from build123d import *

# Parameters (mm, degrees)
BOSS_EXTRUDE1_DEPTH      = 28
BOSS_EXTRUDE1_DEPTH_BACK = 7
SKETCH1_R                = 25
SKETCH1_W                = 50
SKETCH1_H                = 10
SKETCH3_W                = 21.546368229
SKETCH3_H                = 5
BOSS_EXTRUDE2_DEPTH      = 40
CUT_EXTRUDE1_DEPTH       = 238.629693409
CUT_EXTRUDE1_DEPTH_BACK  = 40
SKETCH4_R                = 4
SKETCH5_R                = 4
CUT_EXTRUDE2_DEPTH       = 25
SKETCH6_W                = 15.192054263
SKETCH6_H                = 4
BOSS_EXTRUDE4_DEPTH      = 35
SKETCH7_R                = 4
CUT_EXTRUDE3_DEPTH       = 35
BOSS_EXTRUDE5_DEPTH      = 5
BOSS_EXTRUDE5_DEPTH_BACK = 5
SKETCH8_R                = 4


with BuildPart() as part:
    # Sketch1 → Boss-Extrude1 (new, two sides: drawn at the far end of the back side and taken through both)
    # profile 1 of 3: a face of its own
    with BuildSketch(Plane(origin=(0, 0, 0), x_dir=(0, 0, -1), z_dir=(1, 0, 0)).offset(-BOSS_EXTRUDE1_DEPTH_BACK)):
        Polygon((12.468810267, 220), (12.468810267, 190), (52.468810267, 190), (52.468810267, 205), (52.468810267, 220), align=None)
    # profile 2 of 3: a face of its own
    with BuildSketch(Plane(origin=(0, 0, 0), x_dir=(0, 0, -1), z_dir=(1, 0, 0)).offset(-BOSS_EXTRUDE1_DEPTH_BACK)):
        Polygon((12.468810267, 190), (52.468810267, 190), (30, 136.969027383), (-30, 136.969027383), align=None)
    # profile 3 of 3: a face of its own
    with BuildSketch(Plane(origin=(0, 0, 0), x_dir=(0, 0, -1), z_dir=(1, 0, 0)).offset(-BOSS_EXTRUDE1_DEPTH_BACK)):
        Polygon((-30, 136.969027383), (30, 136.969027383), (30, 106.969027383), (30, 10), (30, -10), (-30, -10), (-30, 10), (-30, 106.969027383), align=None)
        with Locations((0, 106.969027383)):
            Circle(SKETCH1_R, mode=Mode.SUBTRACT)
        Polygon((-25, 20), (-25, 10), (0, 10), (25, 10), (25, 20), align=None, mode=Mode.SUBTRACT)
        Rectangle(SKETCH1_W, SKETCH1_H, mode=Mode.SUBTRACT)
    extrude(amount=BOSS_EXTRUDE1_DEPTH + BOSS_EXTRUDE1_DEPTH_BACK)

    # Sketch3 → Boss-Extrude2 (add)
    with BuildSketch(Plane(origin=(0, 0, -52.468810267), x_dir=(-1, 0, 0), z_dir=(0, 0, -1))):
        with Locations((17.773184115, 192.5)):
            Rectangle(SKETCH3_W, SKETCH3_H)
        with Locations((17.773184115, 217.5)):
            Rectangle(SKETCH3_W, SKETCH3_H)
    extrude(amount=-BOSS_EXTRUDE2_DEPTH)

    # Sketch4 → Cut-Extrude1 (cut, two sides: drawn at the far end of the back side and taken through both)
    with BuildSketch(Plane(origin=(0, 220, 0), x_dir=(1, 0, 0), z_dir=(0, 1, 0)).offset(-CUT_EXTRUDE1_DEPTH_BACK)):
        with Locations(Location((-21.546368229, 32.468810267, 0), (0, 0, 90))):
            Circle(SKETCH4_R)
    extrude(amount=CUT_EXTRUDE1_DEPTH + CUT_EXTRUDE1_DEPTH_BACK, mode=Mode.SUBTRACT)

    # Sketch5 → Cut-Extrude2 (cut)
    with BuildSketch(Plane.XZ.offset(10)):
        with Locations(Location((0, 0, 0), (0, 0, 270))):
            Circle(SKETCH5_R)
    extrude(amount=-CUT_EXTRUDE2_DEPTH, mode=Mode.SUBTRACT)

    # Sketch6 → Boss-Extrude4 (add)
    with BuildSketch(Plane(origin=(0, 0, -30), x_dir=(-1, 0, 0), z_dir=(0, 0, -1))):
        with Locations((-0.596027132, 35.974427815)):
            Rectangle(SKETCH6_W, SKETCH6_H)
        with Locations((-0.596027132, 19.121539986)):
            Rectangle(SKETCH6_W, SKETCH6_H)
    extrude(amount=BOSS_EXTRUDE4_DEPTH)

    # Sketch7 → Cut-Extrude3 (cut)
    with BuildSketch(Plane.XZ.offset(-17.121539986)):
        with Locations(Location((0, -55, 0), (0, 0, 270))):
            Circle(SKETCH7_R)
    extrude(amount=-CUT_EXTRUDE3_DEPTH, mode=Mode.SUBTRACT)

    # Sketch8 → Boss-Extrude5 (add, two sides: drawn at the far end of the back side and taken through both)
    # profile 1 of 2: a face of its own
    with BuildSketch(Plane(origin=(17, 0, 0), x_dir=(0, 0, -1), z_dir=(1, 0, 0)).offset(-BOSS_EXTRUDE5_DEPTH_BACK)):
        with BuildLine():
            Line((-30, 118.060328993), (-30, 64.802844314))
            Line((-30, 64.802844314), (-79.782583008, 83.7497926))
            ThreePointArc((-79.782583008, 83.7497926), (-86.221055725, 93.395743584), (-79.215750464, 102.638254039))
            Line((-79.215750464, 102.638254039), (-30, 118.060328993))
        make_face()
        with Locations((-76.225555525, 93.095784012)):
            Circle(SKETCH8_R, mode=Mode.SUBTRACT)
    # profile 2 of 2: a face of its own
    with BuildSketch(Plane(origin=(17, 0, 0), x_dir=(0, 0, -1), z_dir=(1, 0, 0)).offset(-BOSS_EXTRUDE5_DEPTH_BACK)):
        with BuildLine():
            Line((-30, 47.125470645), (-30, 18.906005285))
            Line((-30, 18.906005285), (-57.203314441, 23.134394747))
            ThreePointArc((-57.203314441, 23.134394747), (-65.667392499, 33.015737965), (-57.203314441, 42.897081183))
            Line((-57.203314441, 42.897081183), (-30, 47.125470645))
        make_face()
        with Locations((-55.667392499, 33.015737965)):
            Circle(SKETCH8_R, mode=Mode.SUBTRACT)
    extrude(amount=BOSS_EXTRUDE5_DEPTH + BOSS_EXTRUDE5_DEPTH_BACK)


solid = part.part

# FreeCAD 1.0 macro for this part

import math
import FreeCAD as App
import Part
import Sketcher

doc = App.newDocument("Part")
body = doc.addObject("PartDesign::Body", "Body")

# Sketch on YZ plane
sketch1 = doc.addObject("Sketcher::SketchObject", "Sketch")
body.addObject(sketch1)
sketch1.AttachmentSupport = (doc.YZ_Plane, [""])
sketch1.MapMode = "FlatFace"
sketch1.addGeometry(Part.LineSegment(App.Vector(220, -12, 0), App.Vector(190, -12, 0)), False)
sketch1.addGeometry(Part.LineSegment(App.Vector(190, -12, 0), App.Vector(137, 30, 0)), False)
sketch1.addGeometry(Part.LineSegment(App.Vector(137, 30, 0), App.Vector(-10, 30, 0)), False)
sketch1.addGeometry(Part.LineSegment(App.Vector(-10, 30, 0), App.Vector(-10, -30, 0)), False)
sketch1.addGeometry(Part.LineSegment(App.Vector(-10, -30, 0), App.Vector(137, -30, 0)), False)
sketch1.addGeometry(Part.LineSegment(App.Vector(137, -30, 0), App.Vector(190, -52, 0)), False)
sketch1.addGeometry(Part.LineSegment(App.Vector(190, -52, 0), App.Vector(220, -52, 0)), False)
sketch1.addGeometry(Part.LineSegment(App.Vector(220, -52, 0), App.Vector(220, -12, 0)), False)
sketch1.addGeometry(Part.Circle(App.Vector(107, 0, 0), App.Vector(0, 0, 1), 25), False)
sketch1.addGeometry(Part.LineSegment(App.Vector(-5, 25, 0), App.Vector(5, 25, 0)), False)
sketch1.addGeometry(Part.LineSegment(App.Vector(5, 25, 0), App.Vector(5, -25, 0)), False)
sketch1.addGeometry(Part.LineSegment(App.Vector(5, -25, 0), App.Vector(-5, -25, 0)), False)
sketch1.addGeometry(Part.LineSegment(App.Vector(-5, -25, 0), App.Vector(-5, 25, 0)), False)
sketch1.addGeometry(Part.LineSegment(App.Vector(20, 25, 0), App.Vector(20, -25, 0)), False)
sketch1.addGeometry(Part.LineSegment(App.Vector(20, -25, 0), App.Vector(10, -25, 0)), False)
sketch1.addGeometry(Part.LineSegment(App.Vector(10, -25, 0), App.Vector(10, 25, 0)), False)
sketch1.addGeometry(Part.LineSegment(App.Vector(10, 25, 0), App.Vector(20, 25, 0)), False)
sketch1.addConstraint(Sketcher.Constraint("Coincident", 0, 2, 1, 1))
sketch1.addConstraint(Sketcher.Constraint("Coincident", 1, 2, 2, 1))
sketch1.addConstraint(Sketcher.Constraint("Coincident", 2, 2, 3, 1))
sketch1.addConstraint(Sketcher.Constraint("Coincident", 3, 2, 4, 1))
sketch1.addConstraint(Sketcher.Constraint("Coincident", 4, 2, 5, 1))
sketch1.addConstraint(Sketcher.Constraint("Coincident", 5, 2, 6, 1))
sketch1.addConstraint(Sketcher.Constraint("Coincident", 6, 2, 7, 1))
sketch1.addConstraint(Sketcher.Constraint("Coincident", 7, 2, 0, 1))
sketch1.addConstraint(Sketcher.Constraint("Coincident", 9, 2, 10, 1))
sketch1.addConstraint(Sketcher.Constraint("Coincident", 10, 2, 11, 1))
sketch1.addConstraint(Sketcher.Constraint("Coincident", 11, 2, 12, 1))
sketch1.addConstraint(Sketcher.Constraint("Coincident", 12, 2, 9, 1))
sketch1.addConstraint(Sketcher.Constraint("Coincident", 13, 2, 14, 1))
sketch1.addConstraint(Sketcher.Constraint("Coincident", 14, 2, 15, 1))
sketch1.addConstraint(Sketcher.Constraint("Coincident", 15, 2, 16, 1))
sketch1.addConstraint(Sketcher.Constraint("Coincident", 16, 2, 13, 1))
sketch1.addConstraint(Sketcher.Constraint("Horizontal", 0))
sketch1.addConstraint(Sketcher.Constraint("Horizontal", 2))
sketch1.addConstraint(Sketcher.Constraint("Vertical", 3))
sketch1.addConstraint(Sketcher.Constraint("Horizontal", 4))
sketch1.addConstraint(Sketcher.Constraint("Horizontal", 6))
sketch1.addConstraint(Sketcher.Constraint("Vertical", 7))
sketch1.addConstraint(Sketcher.Constraint("Horizontal", 9))
sketch1.addConstraint(Sketcher.Constraint("Vertical", 10))
sketch1.addConstraint(Sketcher.Constraint("Horizontal", 11))
sketch1.addConstraint(Sketcher.Constraint("Vertical", 12))
sketch1.addConstraint(Sketcher.Constraint("Vertical", 13))
sketch1.addConstraint(Sketcher.Constraint("Horizontal", 14))
sketch1.addConstraint(Sketcher.Constraint("Vertical", 15))
sketch1.addConstraint(Sketcher.Constraint("Horizontal", 16))
sketch1.addConstraint(Sketcher.Constraint("Symmetric", 9, 2, 11, 2, -1, 1))
sketch1.addConstraint(Sketcher.Constraint("Symmetric", 1, 2, 4, 2, -1))
sketch1.addConstraint(Sketcher.Constraint("PointOnObject", 8, 3, -1))
sketch1.addConstraint(Sketcher.Constraint("Horizontal", 11, 2, 13, 2))
sketch1.addConstraint(Sketcher.Constraint("Horizontal", 12, 2, 15, 2))
sketch1.addConstraint(Sketcher.Constraint("Vertical", 0, 2, 5, 2))
sketch1.addConstraint(Sketcher.Constraint("Equal", 11, 14))
sketch1.addConstraint(Sketcher.Constraint("Diameter", 8, 50.0))
sketch1.addConstraint(Sketcher.Constraint("DistanceX", 0, 2, 0, 1, 30.0))
sketch1.addConstraint(Sketcher.Constraint("DistanceX", 9, 1, 9, 2, 10.0))
sketch1.addConstraint(Sketcher.Constraint("DistanceY", 3, 2, 3, 1, 60.0))
sketch1.addConstraint(Sketcher.Constraint("DistanceY", 7, 1, 7, 2, 40.0))
sketch1.addConstraint(Sketcher.Constraint("DistanceY", 10, 2, 10, 1, 50.0))
sketch1.addConstraint(Sketcher.Constraint("DistanceX", -1, 1, 0, 2, 190.0))
sketch1.addConstraint(Sketcher.Constraint("DistanceX", 2, 2, -1, 1, 10.0))
sketch1.addConstraint(Sketcher.Constraint("DistanceX", -1, 1, 13, 2, 20.0))
sketch1.addConstraint(Sketcher.Constraint("DistanceX", 8, 3, 1, 2, 30.0))
sketch1.addConstraint(Sketcher.Constraint("DistanceX", 2, 2, 2, 1, 146.969027))
sketch1.addConstraint(Sketcher.Constraint("DistanceY", 0, 2, -1, 1, 12.46881))
pad1 = doc.addObject("PartDesign::Pad", "Pad")
body.addObject(pad1)
pad1.Profile = sketch1
pad1.Type = "TwoLengths"
pad1.Length = 28
pad1.Length2 = 7

# Sketch on XY plane
sketch2 = doc.addObject("Sketcher::SketchObject", "Sketch001")
body.addObject(sketch2)
sketch2.AttachmentSupport = (doc.XY_Plane, [""])
sketch2.MapMode = "FlatFace"
sketch2.AttachmentOffset = App.Placement(App.Vector(0, 0, -52.46881), App.Rotation())
sketch2.addGeometry(Part.LineSegment(App.Vector(-7, 195, 0), App.Vector(-7, 190, 0)), False)
sketch2.addGeometry(Part.LineSegment(App.Vector(-7, 190, 0), App.Vector(-29, 190, 0)), False)
sketch2.addGeometry(Part.LineSegment(App.Vector(-29, 190, 0), App.Vector(-29, 195, 0)), False)
sketch2.addGeometry(Part.LineSegment(App.Vector(-29, 195, 0), App.Vector(-7, 195, 0)), False)
sketch2.addGeometry(Part.LineSegment(App.Vector(-7, 220, 0), App.Vector(-7, 215, 0)), False)
sketch2.addGeometry(Part.LineSegment(App.Vector(-7, 215, 0), App.Vector(-29, 215, 0)), False)
sketch2.addGeometry(Part.LineSegment(App.Vector(-29, 215, 0), App.Vector(-29, 220, 0)), False)
sketch2.addGeometry(Part.LineSegment(App.Vector(-29, 220, 0), App.Vector(-7, 220, 0)), False)
sketch2.addConstraint(Sketcher.Constraint("Coincident", 0, 2, 1, 1))
sketch2.addConstraint(Sketcher.Constraint("Coincident", 1, 2, 2, 1))
sketch2.addConstraint(Sketcher.Constraint("Coincident", 2, 2, 3, 1))
sketch2.addConstraint(Sketcher.Constraint("Coincident", 3, 2, 0, 1))
sketch2.addConstraint(Sketcher.Constraint("Coincident", 4, 2, 5, 1))
sketch2.addConstraint(Sketcher.Constraint("Coincident", 5, 2, 6, 1))
sketch2.addConstraint(Sketcher.Constraint("Coincident", 6, 2, 7, 1))
sketch2.addConstraint(Sketcher.Constraint("Coincident", 7, 2, 4, 1))
sketch2.addConstraint(Sketcher.Constraint("Vertical", 0))
sketch2.addConstraint(Sketcher.Constraint("Horizontal", 1))
sketch2.addConstraint(Sketcher.Constraint("Vertical", 2))
sketch2.addConstraint(Sketcher.Constraint("Horizontal", 3))
sketch2.addConstraint(Sketcher.Constraint("Vertical", 4))
sketch2.addConstraint(Sketcher.Constraint("Horizontal", 5))
sketch2.addConstraint(Sketcher.Constraint("Vertical", 6))
sketch2.addConstraint(Sketcher.Constraint("Horizontal", 7))
sketch2.addConstraint(Sketcher.Constraint("Vertical", 3, 2, 4, 2))
sketch2.addConstraint(Sketcher.Constraint("Vertical", 2, 2, 5, 2))
sketch2.addConstraint(Sketcher.Constraint("Equal", 2, 4))
sketch2.addConstraint(Sketcher.Constraint("DistanceY", 0, 2, 0, 1, 5.0))
sketch2.addConstraint(Sketcher.Constraint("DistanceX", 0, 2, -1, 1, 7.0))
sketch2.addConstraint(Sketcher.Constraint("DistanceY", -1, 1, 0, 2, 190.0))
sketch2.addConstraint(Sketcher.Constraint("DistanceY", -1, 1, 4, 2, 215.0))
sketch2.addConstraint(Sketcher.Constraint("DistanceX", 1, 2, 1, 1, 21.546368))
pad2 = doc.addObject("PartDesign::Pad", "Pad001")
body.addObject(pad2)
pad2.Profile = sketch2
pad2.Length = 40

# Sketch on XZ plane
sketch3 = doc.addObject("Sketcher::SketchObject", "Sketch002")
body.addObject(sketch3)
sketch3.AttachmentSupport = (doc.XZ_Plane, [""])
sketch3.MapMode = "FlatFace"
sketch3.AttachmentOffset = App.Placement(App.Vector(0, 0, -220), App.Rotation())
sketch3.addGeometry(Part.Circle(App.Vector(-21.5, -32.5, 0), App.Vector(0, 0, 1), 4), False)
sketch3.addConstraint(Sketcher.Constraint("Diameter", 0, 8.0))
sketch3.addConstraint(Sketcher.Constraint("DistanceX", 0, 3, -1, 1, 21.546368))
sketch3.addConstraint(Sketcher.Constraint("DistanceY", 0, 3, -1, 1, 32.46881))
pocket1 = doc.addObject("PartDesign::Pocket", "Pocket")
body.addObject(pocket1)
pocket1.Profile = sketch3
pocket1.Type = "ThroughAll"
pocket1.Midplane = True

# Sketch on XZ plane
sketch4 = doc.addObject("Sketcher::SketchObject", "Sketch003")
body.addObject(sketch4)
sketch4.AttachmentSupport = (doc.XZ_Plane, [""])
sketch4.MapMode = "FlatFace"
sketch4.AttachmentOffset = App.Placement(App.Vector(0, 0, 10), App.Rotation())
sketch4.addGeometry(Part.Circle(App.Vector(0, 0, 0), App.Vector(0, 0, 1), 4), False)
sketch4.addConstraint(Sketcher.Constraint("Coincident", 0, 3, -1, 1))
sketch4.addConstraint(Sketcher.Constraint("Diameter", 0, 8.0))
pocket2 = doc.addObject("PartDesign::Pocket", "Pocket001")
body.addObject(pocket2)
pocket2.Profile = sketch4
pocket2.Length = 25

# Sketch on XY plane
sketch5 = doc.addObject("Sketcher::SketchObject", "Sketch004")
body.addObject(sketch5)
sketch5.AttachmentSupport = (doc.XY_Plane, [""])
sketch5.MapMode = "FlatFace"
sketch5.AttachmentOffset = App.Placement(App.Vector(0, 0, -30), App.Rotation())
sketch5.addGeometry(Part.LineSegment(App.Vector(8.2, 38, 0), App.Vector(8.2, 34, 0)), False)
sketch5.addGeometry(Part.LineSegment(App.Vector(8.2, 34, 0), App.Vector(-7, 34, 0)), False)
sketch5.addGeometry(Part.LineSegment(App.Vector(-7, 34, 0), App.Vector(-7, 38, 0)), False)
sketch5.addGeometry(Part.LineSegment(App.Vector(-7, 38, 0), App.Vector(8.2, 38, 0)), False)
sketch5.addGeometry(Part.LineSegment(App.Vector(8.2, 21.1, 0), App.Vector(8.2, 17.1, 0)), False)
sketch5.addGeometry(Part.LineSegment(App.Vector(8.2, 17.1, 0), App.Vector(-7, 17.1, 0)), False)
sketch5.addGeometry(Part.LineSegment(App.Vector(-7, 17.1, 0), App.Vector(-7, 21.1, 0)), False)
sketch5.addGeometry(Part.LineSegment(App.Vector(-7, 21.1, 0), App.Vector(8.2, 21.1, 0)), False)
sketch5.addConstraint(Sketcher.Constraint("Coincident", 0, 2, 1, 1))
sketch5.addConstraint(Sketcher.Constraint("Coincident", 1, 2, 2, 1))
sketch5.addConstraint(Sketcher.Constraint("Coincident", 2, 2, 3, 1))
sketch5.addConstraint(Sketcher.Constraint("Coincident", 3, 2, 0, 1))
sketch5.addConstraint(Sketcher.Constraint("Coincident", 4, 2, 5, 1))
sketch5.addConstraint(Sketcher.Constraint("Coincident", 5, 2, 6, 1))
sketch5.addConstraint(Sketcher.Constraint("Coincident", 6, 2, 7, 1))
sketch5.addConstraint(Sketcher.Constraint("Coincident", 7, 2, 4, 1))
sketch5.addConstraint(Sketcher.Constraint("Vertical", 0))
sketch5.addConstraint(Sketcher.Constraint("Horizontal", 1))
sketch5.addConstraint(Sketcher.Constraint("Vertical", 2))
sketch5.addConstraint(Sketcher.Constraint("Horizontal", 3))
sketch5.addConstraint(Sketcher.Constraint("Vertical", 4))
sketch5.addConstraint(Sketcher.Constraint("Horizontal", 5))
sketch5.addConstraint(Sketcher.Constraint("Vertical", 6))
sketch5.addConstraint(Sketcher.Constraint("Horizontal", 7))
sketch5.addConstraint(Sketcher.Constraint("Vertical", 3, 2, 4, 2))
sketch5.addConstraint(Sketcher.Constraint("Vertical", 2, 2, 5, 2))
sketch5.addConstraint(Sketcher.Constraint("Equal", 2, 4))
sketch5.addConstraint(Sketcher.Constraint("DistanceY", 0, 2, 0, 1, 4.0))
sketch5.addConstraint(Sketcher.Constraint("DistanceX", 1, 2, -1, 1, 7.0))
sketch5.addConstraint(Sketcher.Constraint("DistanceX", 1, 2, 1, 1, 15.192054))
sketch5.addConstraint(Sketcher.Constraint("DistanceY", -1, 1, 4, 2, 17.12154))
sketch5.addConstraint(Sketcher.Constraint("DistanceY", -1, 1, 0, 2, 33.974428))
pad3 = doc.addObject("PartDesign::Pad", "Pad002")
body.addObject(pad3)
pad3.Profile = sketch5
pad3.Length = 35
pad3.Reversed = True

# Sketch on XZ plane
sketch6 = doc.addObject("Sketcher::SketchObject", "Sketch005")
body.addObject(sketch6)
sketch6.AttachmentSupport = (doc.XZ_Plane, [""])
sketch6.MapMode = "FlatFace"
sketch6.AttachmentOffset = App.Placement(App.Vector(0, 0, -17.12154), App.Rotation())
sketch6.addGeometry(Part.Circle(App.Vector(0, -55, 0), App.Vector(0, 0, 1), 4), False)
sketch6.addConstraint(Sketcher.Constraint("PointOnObject", 0, 3, -2))
sketch6.addConstraint(Sketcher.Constraint("Diameter", 0, 8.0))
sketch6.addConstraint(Sketcher.Constraint("DistanceY", 0, 3, -1, 1, 55.0))
pocket3 = doc.addObject("PartDesign::Pocket", "Pocket002")
body.addObject(pocket3)
pocket3.Profile = sketch6
pocket3.Length = 35

# Sketch on YZ plane
sketch7 = doc.addObject("Sketcher::SketchObject", "Sketch006")
body.addObject(sketch7)
sketch7.AttachmentSupport = (doc.YZ_Plane, [""])
sketch7.MapMode = "FlatFace"
sketch7.AttachmentOffset = App.Placement(App.Vector(0, 0, 17), App.Rotation())
sketch7.addGeometry(Part.LineSegment(App.Vector(64.802844, 30, 0), App.Vector(118.060329, 30, 0)), False)
sketch7.addGeometry(Part.LineSegment(App.Vector(118.060329, 30, 0), App.Vector(102.638254, 79.21575, 0)), False)
sketch7.addGeometry(Part.ArcOfCircle(Part.Circle(App.Vector(93.095784, 76.225556, 0), App.Vector(0, 0, 1), 10), math.radians(17.398721), math.radians(159.16348)), False)
sketch7.addGeometry(Part.LineSegment(App.Vector(83.749793, 79.782583, 0), App.Vector(64.802844, 30, 0)), False)
sketch7.addGeometry(Part.Circle(App.Vector(93.095784, 76.225556, 0), App.Vector(0, 0, 1), 4), False)
sketch7.addGeometry(Part.LineSegment(App.Vector(18.906005, 30, 0), App.Vector(47.125471, 30, 0)), False)
sketch7.addGeometry(Part.LineSegment(App.Vector(47.125471, 30, 0), App.Vector(42.897081, 57.203314, 0)), False)
sketch7.addGeometry(Part.ArcOfCircle(Part.Circle(App.Vector(33.015738, 55.667392, 0), App.Vector(0, 0, 1), 10), math.radians(8.835157), math.radians(171.164843)), False)
sketch7.addGeometry(Part.LineSegment(App.Vector(23.134395, 57.203314, 0), App.Vector(18.906005, 30, 0)), False)
sketch7.addGeometry(Part.Circle(App.Vector(33.015738, 55.667392, 0), App.Vector(0, 0, 1), 4), False)
sketch7.addConstraint(Sketcher.Constraint("Coincident", 0, 2, 1, 1))
sketch7.addConstraint(Sketcher.Constraint("Coincident", 1, 2, 2, 1))
sketch7.addConstraint(Sketcher.Constraint("Coincident", 2, 2, 3, 1))
sketch7.addConstraint(Sketcher.Constraint("Coincident", 3, 2, 0, 1))
sketch7.addConstraint(Sketcher.Constraint("Coincident", 5, 2, 6, 1))
sketch7.addConstraint(Sketcher.Constraint("Coincident", 6, 2, 7, 1))
sketch7.addConstraint(Sketcher.Constraint("Coincident", 7, 2, 8, 1))
sketch7.addConstraint(Sketcher.Constraint("Coincident", 8, 2, 5, 1))
sketch7.addConstraint(Sketcher.Constraint("Horizontal", 0))
sketch7.addConstraint(Sketcher.Constraint("Horizontal", 5))
sketch7.addConstraint(Sketcher.Constraint("Coincident", 4, 3, 2, 3))
sketch7.addConstraint(Sketcher.Constraint("Coincident", 9, 3, 7, 3))
sketch7.addConstraint(Sketcher.Constraint("Diameter", 4, 8.0))
sketch7.addConstraint(Sketcher.Constraint("Diameter", 9, 8.0))
sketch7.addConstraint(Sketcher.Constraint("Radius", 2, 10.0))
sketch7.addConstraint(Sketcher.Constraint("Radius", 7, 10.0))
sketch7.addConstraint(Sketcher.Constraint("DistanceY", -1, 1, 0, 2, 30.0))
sketch7.addConstraint(Sketcher.Constraint("DistanceY", -1, 1, 5, 2, 30.0))
sketch7.addConstraint(Sketcher.Constraint("Distance", 3, 53.266241))
sketch7.addConstraint(Sketcher.Constraint("DistanceX", 0, 1, 0, 2, 53.257485))
sketch7.addConstraint(Sketcher.Constraint("DistanceX", 5, 1, 5, 2, 28.219465))
sketch7.addConstraint(Sketcher.Constraint("DistanceX", -1, 1, 0, 2, 118.060329))
sketch7.addConstraint(Sketcher.Constraint("DistanceY", -1, 1, 1, 2, 79.21575))
sketch7.addConstraint(Sketcher.Constraint("DistanceX", -1, 1, 5, 2, 47.125471))
sketch7.addConstraint(Sketcher.Constraint("DistanceX", -1, 1, 6, 2, 42.897081))
sketch7.addConstraint(Sketcher.Constraint("DistanceX", 7, 3, 0, 2, 85.044591))
sketch7.addConstraint(Sketcher.Constraint("DistanceX", 2, 3, 1, 2, 9.54247))
sketch7.addConstraint(Sketcher.Constraint("DistanceX", 2, 2, 2, 3, 9.345991))
sketch7.addConstraint(Sketcher.Constraint("DistanceY", 7, 3, 2, 2, 24.115191))
sketch7.addConstraint(Sketcher.Constraint("DistanceY", 7, 3, 7, 2, 1.535922))
pad4 = doc.addObject("PartDesign::Pad", "Pad003")
body.addObject(pad4)
pad4.Profile = sketch7
pad4.Type = "TwoLengths"
pad4.Length = 5
pad4.Length2 = 5

doc.recompute()
